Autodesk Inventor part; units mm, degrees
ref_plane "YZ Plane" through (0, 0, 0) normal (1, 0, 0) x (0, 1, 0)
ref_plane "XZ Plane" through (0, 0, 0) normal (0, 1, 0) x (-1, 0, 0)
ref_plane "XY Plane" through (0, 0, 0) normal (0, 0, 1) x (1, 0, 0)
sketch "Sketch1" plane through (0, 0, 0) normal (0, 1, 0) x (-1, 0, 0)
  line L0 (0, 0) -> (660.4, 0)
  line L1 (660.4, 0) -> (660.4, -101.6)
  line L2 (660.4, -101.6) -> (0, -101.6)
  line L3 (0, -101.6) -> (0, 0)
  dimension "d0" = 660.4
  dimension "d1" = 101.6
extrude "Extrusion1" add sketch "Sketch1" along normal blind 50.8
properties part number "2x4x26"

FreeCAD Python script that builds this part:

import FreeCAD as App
import Part
import Sketcher

V = App.Vector
Q = App.Units.Quantity

doc = App.newDocument("Part")
body = doc.addObject("PartDesign::Body", "Body")

sketch1 = doc.addObject("Sketcher::SketchObject", "Sketch")
body.addObject(sketch1)
sketch1.AttachmentSupport = (doc.XZ_Plane, [""])
sketch1.MapMode = "FlatFace"
sketch1.addGeometry(Part.LineSegment(V(-660, 0, 0), V(0, 0, 0)), False)
sketch1.addGeometry(Part.LineSegment(V(0, 0, 0), V(0, -102, 0)), False)
sketch1.addGeometry(Part.LineSegment(V(0, -102, 0), V(-660, -102, 0)), False)
sketch1.addGeometry(Part.LineSegment(V(-660, -102, 0), V(-660, 0, 0)), False)
sketch1.addConstraint(Sketcher.Constraint("Coincident", 0, 2, 1, 1))
sketch1.addConstraint(Sketcher.Constraint("Coincident", 1, 2, 2, 1))
sketch1.addConstraint(Sketcher.Constraint("Coincident", 2, 2, 3, 1))
sketch1.addConstraint(Sketcher.Constraint("Coincident", 3, 2, 0, 1))
sketch1.addConstraint(Sketcher.Constraint("Horizontal", 0))
sketch1.addConstraint(Sketcher.Constraint("Vertical", 1))
sketch1.addConstraint(Sketcher.Constraint("Horizontal", 2))
sketch1.addConstraint(Sketcher.Constraint("Vertical", 3))
sketch1.addConstraint(Sketcher.Constraint("Coincident", 0, 2, -1, 1))
sketch1.addConstraint(Sketcher.Constraint("DistanceX", 0, 1, 0, 2, Q("26 in")))
sketch1.addConstraint(Sketcher.Constraint("DistanceY", 1, 2, 1, 1, Q("4 in")))
pad1 = doc.addObject("PartDesign::Pad", "Pad")
body.addObject(pad1)
pad1.Profile = sketch1
pad1.Length = Q("2 in")
pad1.Reversed = True

doc.recompute()
